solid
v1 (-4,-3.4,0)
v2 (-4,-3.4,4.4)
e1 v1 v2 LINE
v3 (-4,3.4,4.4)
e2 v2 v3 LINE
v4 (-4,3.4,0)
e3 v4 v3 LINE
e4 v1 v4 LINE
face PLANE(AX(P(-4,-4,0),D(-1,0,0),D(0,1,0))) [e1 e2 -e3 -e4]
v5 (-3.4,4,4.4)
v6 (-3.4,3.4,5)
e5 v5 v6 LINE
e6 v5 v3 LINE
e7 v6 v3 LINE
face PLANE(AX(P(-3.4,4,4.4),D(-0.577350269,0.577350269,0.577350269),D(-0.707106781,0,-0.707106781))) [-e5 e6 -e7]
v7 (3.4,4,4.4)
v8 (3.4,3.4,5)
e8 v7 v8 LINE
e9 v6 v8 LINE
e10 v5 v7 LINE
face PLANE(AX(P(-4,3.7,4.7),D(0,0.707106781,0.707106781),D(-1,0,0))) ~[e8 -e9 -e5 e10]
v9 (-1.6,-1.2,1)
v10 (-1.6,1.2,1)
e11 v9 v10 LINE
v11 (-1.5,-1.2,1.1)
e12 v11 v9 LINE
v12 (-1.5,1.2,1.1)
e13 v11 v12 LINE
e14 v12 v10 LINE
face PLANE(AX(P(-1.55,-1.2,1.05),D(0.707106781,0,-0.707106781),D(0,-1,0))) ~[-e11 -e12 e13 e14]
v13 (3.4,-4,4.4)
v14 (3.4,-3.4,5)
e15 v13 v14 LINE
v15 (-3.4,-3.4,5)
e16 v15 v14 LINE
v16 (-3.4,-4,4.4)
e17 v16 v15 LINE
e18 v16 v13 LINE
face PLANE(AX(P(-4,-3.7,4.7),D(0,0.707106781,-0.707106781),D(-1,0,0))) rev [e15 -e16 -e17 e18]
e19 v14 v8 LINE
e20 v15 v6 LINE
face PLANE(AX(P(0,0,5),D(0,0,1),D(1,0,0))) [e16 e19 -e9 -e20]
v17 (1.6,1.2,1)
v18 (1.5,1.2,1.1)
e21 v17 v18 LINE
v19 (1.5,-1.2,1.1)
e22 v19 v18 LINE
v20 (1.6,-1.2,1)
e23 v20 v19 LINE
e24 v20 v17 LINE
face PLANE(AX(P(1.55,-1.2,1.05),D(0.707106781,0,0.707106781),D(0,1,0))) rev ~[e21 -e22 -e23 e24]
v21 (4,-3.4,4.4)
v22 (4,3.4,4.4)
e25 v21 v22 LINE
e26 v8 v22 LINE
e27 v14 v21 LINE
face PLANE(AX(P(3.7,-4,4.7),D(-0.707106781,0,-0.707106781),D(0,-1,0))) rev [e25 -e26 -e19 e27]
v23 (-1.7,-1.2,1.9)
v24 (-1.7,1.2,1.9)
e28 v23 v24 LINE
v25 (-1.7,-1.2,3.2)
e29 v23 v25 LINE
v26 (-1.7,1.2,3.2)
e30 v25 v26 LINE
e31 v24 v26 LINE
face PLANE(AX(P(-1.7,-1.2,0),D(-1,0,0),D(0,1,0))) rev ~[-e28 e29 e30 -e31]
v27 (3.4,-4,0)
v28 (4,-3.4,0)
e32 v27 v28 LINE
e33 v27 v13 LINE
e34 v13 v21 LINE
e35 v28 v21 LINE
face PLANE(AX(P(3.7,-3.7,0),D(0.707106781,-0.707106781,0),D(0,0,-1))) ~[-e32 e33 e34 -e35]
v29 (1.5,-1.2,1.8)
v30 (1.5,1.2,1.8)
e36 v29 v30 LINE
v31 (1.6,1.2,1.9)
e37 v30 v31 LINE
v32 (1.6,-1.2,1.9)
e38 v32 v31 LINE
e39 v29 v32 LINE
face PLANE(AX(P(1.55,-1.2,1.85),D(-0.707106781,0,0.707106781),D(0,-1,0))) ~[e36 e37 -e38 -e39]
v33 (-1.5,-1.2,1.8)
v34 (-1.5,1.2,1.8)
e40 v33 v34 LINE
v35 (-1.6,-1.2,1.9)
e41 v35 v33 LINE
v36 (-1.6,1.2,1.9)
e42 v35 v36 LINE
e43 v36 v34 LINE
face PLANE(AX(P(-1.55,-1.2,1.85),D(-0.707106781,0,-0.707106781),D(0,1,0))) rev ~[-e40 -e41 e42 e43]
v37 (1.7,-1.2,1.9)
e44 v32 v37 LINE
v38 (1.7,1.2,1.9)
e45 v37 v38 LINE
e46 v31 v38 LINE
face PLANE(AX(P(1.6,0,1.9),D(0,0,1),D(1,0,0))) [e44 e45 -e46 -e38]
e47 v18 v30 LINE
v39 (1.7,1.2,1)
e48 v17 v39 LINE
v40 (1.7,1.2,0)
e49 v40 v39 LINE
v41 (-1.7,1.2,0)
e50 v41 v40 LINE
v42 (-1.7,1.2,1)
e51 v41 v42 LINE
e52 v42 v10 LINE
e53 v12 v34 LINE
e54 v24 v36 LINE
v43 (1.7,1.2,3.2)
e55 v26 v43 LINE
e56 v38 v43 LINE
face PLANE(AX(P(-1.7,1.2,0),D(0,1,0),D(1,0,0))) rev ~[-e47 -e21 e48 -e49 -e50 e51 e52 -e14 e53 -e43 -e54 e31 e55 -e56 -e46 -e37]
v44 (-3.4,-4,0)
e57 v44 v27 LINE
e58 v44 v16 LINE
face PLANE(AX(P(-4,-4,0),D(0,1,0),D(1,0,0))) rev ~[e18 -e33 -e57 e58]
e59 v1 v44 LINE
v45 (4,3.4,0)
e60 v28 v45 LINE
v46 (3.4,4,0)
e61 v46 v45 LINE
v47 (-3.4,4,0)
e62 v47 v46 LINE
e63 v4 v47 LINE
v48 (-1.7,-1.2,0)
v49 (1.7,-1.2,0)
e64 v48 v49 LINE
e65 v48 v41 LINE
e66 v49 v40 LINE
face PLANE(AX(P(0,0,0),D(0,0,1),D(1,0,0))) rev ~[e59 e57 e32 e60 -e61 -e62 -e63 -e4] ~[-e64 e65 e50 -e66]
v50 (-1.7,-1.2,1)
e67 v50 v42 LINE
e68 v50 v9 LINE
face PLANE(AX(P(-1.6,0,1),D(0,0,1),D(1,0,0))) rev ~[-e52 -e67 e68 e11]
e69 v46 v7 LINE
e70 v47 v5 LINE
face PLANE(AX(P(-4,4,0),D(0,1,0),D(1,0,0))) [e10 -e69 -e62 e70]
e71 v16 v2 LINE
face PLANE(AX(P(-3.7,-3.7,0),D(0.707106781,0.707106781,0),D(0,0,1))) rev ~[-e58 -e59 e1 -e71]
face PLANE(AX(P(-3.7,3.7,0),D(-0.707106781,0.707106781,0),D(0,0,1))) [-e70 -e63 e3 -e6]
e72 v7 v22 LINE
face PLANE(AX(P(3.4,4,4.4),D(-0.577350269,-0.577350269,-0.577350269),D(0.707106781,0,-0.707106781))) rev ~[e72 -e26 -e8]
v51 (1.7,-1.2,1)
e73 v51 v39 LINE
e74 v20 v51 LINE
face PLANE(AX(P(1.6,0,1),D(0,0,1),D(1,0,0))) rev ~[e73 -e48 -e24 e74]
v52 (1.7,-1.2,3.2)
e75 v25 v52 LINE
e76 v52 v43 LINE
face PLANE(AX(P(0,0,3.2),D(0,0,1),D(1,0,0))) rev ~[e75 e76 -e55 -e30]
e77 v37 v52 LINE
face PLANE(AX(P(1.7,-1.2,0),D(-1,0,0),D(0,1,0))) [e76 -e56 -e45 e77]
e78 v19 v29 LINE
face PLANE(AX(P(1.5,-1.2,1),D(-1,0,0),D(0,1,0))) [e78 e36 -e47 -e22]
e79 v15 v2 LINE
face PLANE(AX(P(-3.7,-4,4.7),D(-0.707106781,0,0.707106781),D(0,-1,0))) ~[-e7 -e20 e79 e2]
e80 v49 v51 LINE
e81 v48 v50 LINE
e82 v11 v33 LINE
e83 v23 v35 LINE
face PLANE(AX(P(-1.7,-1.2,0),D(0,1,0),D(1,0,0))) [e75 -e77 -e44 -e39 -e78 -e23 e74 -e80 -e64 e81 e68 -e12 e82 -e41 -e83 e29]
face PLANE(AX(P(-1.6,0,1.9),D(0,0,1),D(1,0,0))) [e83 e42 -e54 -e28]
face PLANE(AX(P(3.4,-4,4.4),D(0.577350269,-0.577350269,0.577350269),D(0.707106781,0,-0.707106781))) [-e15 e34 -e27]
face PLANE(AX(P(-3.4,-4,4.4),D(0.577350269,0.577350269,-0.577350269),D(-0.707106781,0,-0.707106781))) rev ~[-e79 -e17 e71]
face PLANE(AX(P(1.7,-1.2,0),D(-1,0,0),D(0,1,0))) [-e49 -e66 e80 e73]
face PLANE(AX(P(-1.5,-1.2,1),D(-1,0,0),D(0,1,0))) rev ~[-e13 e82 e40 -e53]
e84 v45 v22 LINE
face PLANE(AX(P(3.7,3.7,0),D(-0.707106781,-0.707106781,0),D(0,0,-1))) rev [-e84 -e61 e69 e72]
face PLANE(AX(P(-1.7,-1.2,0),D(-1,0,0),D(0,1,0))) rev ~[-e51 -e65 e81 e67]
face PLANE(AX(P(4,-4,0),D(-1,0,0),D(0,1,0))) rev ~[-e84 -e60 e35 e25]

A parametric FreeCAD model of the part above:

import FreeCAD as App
import Part
import Sketcher

V = App.Vector


def edges_at(feature, points):
    """Names of the edges that pass closest to the given points."""
    edges = feature.Shape.Edges
    near = lambda p: min(range(len(edges)), key=lambda i: edges[i].distToShape(Part.Vertex(*p))[0])
    return sorted({f"Edge{near(p) + 1}" for p in points})


def add_polygon(sketch, points):
    """Adds a closed chain of lines whose ends are joined by coincident constraints."""
    first, n = sketch.GeometryCount, len(points)
    for a, b in zip(points, points[1:] + points[:1]):
        sketch.addGeometry(Part.LineSegment(App.Vector(*a, 0), App.Vector(*b, 0)), False)
    for i in range(n):
        sketch.addConstraint(Sketcher.Constraint("Coincident", first + i, 2, first + (i + 1) % n, 1))

doc = App.newDocument("Part")
params = doc.addObject("Spreadsheet::Sheet", "Params")
for row, (alias, value) in enumerate([
    ("sketch1_width", "8 mm"),
    ("pad1_length", "5 mm"),
    ("sketch2_width", "3.4 mm"),
    ("sketch2_height", "2.4 mm"),
    ("pocket1_length", "3.2 mm"),
    ("sketch3_width", "0.2 mm"),
    ("sketch3_height", "2.4 mm"),
    ("pad2_length", "0.9 mm"),
    ("chamfer_size", "0.1 mm"),
    ("chamfer2_size", "0.6 mm"),
], start=1):
    params.set(f"A{row}", alias)
    params.set(f"B{row}", "=" + value)
    params.setAlias(f"B{row}", alias)

body = doc.addObject("PartDesign::Body", "Body")

sketch1 = body.newObject("Sketcher::SketchObject", "Sketch")
sketch1.AttachmentSupport = (doc.getObject("XY_Plane"), [""])
sketch1.MapMode = "FlatFace"
add_polygon(sketch1, [(-4, 4), (-4, -4), (4, -4), (4, 4)])
sketch1.addConstraint([
    Sketcher.Constraint("Vertical", 0),
    Sketcher.Constraint("Horizontal", 1),
    Sketcher.Constraint("Vertical", 2),
    Sketcher.Constraint("Horizontal", 3),
    Sketcher.Constraint("Symmetric", 0, 2, 2, 2, -1, 1),
    Sketcher.Constraint("Equal", 3, 0),
    Sketcher.Constraint("DistanceX", 1, 1, 1, 2, 8.0),
])
sketch1.setExpression("Constraints[10]", "Params.sketch1_width")
pad1 = body.newObject("PartDesign::Pad", "Pad")
pad1.Profile = sketch1
pad1.setExpression("Length", "Params.pad1_length")

sketch2 = body.newObject("Sketcher::SketchObject", "Sketch001")
sketch2.AttachmentSupport = (doc.getObject("XY_Plane"), [""])
sketch2.MapMode = "FlatFace"
add_polygon(sketch2, [(-1.7, 1.2), (-1.7, -1.2), (1.7, -1.2), (1.7, 1.2)])
sketch2.addConstraint([
    Sketcher.Constraint("Vertical", 0),
    Sketcher.Constraint("Horizontal", 1),
    Sketcher.Constraint("Vertical", 2),
    Sketcher.Constraint("Horizontal", 3),
    Sketcher.Constraint("Symmetric", 0, 2, 2, 2, -1, 1),
    Sketcher.Constraint("DistanceX", 1, 1, 1, 2, 3.4),
    Sketcher.Constraint("DistanceY", 0, 2, 0, 1, 2.4),
])
sketch2.setExpression("Constraints[9]", "Params.sketch2_width")
sketch2.setExpression("Constraints[10]", "Params.sketch2_height")
pocket1 = body.newObject("PartDesign::Pocket", "Pocket")
pocket1.Profile = sketch2
pocket1.setExpression("Length", "Params.pocket1_length")
pocket1.Reversed = True

sketch3 = body.newObject("Sketcher::SketchObject", "Sketch002")
sketch3.AttachmentSupport = (doc.getObject("XY_Plane"), [""])
sketch3.MapMode = "FlatFace"
sketch3.AttachmentOffset = App.Placement(V(0, 0, 1), App.Rotation())
add_polygon(sketch3, [(-1.7, 1.2), (-1.7, -1.2), (-1.5, -1.2), (-1.5, 1.2)])
add_polygon(sketch3, [(1.5, 1.2), (1.5, -1.2), (1.7, -1.2), (1.7, 1.2)])
sketch3.addConstraint([
    Sketcher.Constraint("Vertical", 0),
    Sketcher.Constraint("Horizontal", 1),
    Sketcher.Constraint("Vertical", 2),
    Sketcher.Constraint("Horizontal", 3),
    Sketcher.Constraint("Vertical", 4),
    Sketcher.Constraint("Horizontal", 5),
    Sketcher.Constraint("Vertical", 6),
    Sketcher.Constraint("Horizontal", 7),
    Sketcher.Constraint("Symmetric", 2, 2, 4, 2, -1, 1),
    Sketcher.Constraint("Symmetric", 0, 2, 6, 2, -1, 1),
    Sketcher.Constraint("Horizontal", 1, 2, 4, 2),
    Sketcher.Constraint("DistanceX", 1, 1, 1, 2, 0.2),
    Sketcher.Constraint("DistanceY", 0, 2, 0, 1, 2.4),
    Sketcher.Constraint("DistanceX", 1, 2, 4, 2, 3.0),
])
sketch3.setExpression("Constraints[19]", "Params.sketch3_width")
sketch3.setExpression("Constraints[20]", "Params.sketch3_height")
pad2 = body.newObject("PartDesign::Pad", "Pad001")
pad2.Profile = sketch3
pad2.setExpression("Length", "Params.pad2_length")
doc.recompute()

chamfer = body.newObject("PartDesign::Chamfer", "Chamfer")
chamfer.Base = (pad2, edges_at(pad2, [
    (-1.5, 0, 1),
    (-1.5, 0, 1.9),
    (1.5, 0, 1),
    (1.5, 0, 1.9),
]))
chamfer.setExpression("Size", "Params.chamfer_size")
doc.recompute()

chamfer2 = body.newObject("PartDesign::Chamfer", "Chamfer001")
chamfer2.Base = (chamfer, edges_at(chamfer, [
    (4, 0, 5),
    (-4, 0, 5),
    (0, -4, 5),
    (0, 4, 5),
    (4, -4, 2.5),
    (4, 4, 2.5),
    (-4, -4, 2.5),
    (-4, 4, 2.5),
]))
chamfer2.setExpression("Size", "Params.chamfer2_size")

doc.recompute()
